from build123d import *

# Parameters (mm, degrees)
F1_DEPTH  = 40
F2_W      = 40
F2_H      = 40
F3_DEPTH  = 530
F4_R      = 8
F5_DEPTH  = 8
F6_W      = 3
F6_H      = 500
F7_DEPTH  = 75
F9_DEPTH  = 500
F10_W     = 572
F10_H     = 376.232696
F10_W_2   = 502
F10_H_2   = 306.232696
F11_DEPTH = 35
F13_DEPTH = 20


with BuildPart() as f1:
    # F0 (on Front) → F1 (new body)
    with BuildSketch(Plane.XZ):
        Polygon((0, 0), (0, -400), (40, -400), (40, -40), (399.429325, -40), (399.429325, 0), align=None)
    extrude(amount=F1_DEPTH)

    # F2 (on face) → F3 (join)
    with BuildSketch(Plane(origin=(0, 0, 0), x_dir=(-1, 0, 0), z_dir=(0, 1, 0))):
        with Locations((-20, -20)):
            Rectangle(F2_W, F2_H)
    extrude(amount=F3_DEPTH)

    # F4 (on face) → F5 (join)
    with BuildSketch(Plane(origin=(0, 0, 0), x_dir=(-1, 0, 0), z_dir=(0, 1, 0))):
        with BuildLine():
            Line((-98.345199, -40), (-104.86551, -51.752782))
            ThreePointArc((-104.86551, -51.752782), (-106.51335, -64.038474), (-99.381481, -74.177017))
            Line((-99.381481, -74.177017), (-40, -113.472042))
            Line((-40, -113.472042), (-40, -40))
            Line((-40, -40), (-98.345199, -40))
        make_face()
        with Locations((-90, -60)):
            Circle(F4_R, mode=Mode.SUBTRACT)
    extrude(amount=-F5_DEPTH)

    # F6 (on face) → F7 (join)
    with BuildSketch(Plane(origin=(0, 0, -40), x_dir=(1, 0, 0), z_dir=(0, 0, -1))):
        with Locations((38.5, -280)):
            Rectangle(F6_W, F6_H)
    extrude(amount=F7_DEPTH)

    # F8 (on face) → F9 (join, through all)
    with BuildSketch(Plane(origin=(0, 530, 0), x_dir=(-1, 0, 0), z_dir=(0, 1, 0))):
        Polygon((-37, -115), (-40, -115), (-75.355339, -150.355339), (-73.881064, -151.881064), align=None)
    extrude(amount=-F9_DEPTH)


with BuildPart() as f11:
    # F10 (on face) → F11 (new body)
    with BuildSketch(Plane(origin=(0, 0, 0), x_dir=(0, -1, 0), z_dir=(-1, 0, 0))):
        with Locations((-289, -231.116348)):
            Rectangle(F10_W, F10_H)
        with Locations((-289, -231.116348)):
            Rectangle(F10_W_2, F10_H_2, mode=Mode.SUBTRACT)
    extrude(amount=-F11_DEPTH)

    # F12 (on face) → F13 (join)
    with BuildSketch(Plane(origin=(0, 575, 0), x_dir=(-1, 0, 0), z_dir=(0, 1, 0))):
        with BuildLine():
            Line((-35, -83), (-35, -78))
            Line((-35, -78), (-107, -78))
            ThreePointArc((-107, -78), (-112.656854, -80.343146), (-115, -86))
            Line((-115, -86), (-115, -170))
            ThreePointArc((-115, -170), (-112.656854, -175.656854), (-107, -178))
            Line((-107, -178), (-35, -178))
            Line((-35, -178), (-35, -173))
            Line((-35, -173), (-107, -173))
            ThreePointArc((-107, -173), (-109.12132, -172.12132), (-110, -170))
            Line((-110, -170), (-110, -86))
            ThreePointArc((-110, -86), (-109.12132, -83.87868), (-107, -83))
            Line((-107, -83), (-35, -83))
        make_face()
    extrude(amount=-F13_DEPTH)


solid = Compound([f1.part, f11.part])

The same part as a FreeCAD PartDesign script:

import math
import FreeCAD as App
import Part
import Sketcher
from FreeCAD import Vector
Q = App.Units.Quantity

doc = App.newDocument("Part")
params = doc.addObject("Spreadsheet::Sheet", "Params")
for row, (alias, value) in enumerate([
    ("sketch1_width", "40 mm"),
    ("sketch1_height", "400 mm"),
    ("pad1_length", "40 mm"),
    ("sketch2_width", "40 mm"),
    ("pad2_length", "530 mm"),
    ("sketch3_diameter", "16 mm"),
    ("sketch3_radius", "16.999999 mm"),
    ("pad3_length", "8 mm"),
    ("sketch4_width", "3 mm"),
    ("sketch4_height", "500 mm"),
    ("pad4_length", "75 mm"),
    ("sketch5_width", "3 mm"),
    ("sketch5_length", "50 mm"),
    ("pad5_length", "500 mm"),
    ("sketch6_width", "572 mm"),
    ("sketch6_width2", "502 mm"),
    ("pad6_length", "35 mm"),
    ("sketch7_radius", "8.000001 mm"),
    ("sketch7_radius2", "3.000001 mm"),
    ("sketch7_width", "72 mm"),
    ("sketch7_height", "84 mm"),
    ("pad7_length", "20 mm"),
], start=1):
    params.set(f"A{row}", alias)
    params.set(f"B{row}", "=" + value)
    params.setAlias(f"B{row}", alias)

body = doc.addObject("PartDesign::Body", "Body")

# Sketch on XZ plane
sketch1 = body.newObject("Sketcher::SketchObject", "Sketch")
sketch1.AttachmentSupport = (doc.getObject("XZ_Plane"), [""])
sketch1.MapMode = "FlatFace"
sketch1.addGeometry(Part.LineSegment(Vector(0, 0, 0), Vector(0, -400, 0)), False)
sketch1.addGeometry(Part.LineSegment(Vector(0, -400, 0), Vector(40, -400, 0)), False)
sketch1.addGeometry(Part.LineSegment(Vector(40, -400, 0), Vector(40, -40, 0)), False)
sketch1.addGeometry(Part.LineSegment(Vector(40, -40, 0), Vector(399, -40, 0)), False)
sketch1.addGeometry(Part.LineSegment(Vector(399, -40, 0), Vector(399, 0, 0)), False)
sketch1.addGeometry(Part.LineSegment(Vector(399, 0, 0), Vector(0, 0, 0)), False)
sketch1.addConstraint(Sketcher.Constraint("Coincident", 0, 2, 1, 1))
sketch1.addConstraint(Sketcher.Constraint("Coincident", 1, 2, 2, 1))
sketch1.addConstraint(Sketcher.Constraint("Coincident", 2, 2, 3, 1))
sketch1.addConstraint(Sketcher.Constraint("Coincident", 3, 2, 4, 1))
sketch1.addConstraint(Sketcher.Constraint("Coincident", 4, 2, 5, 1))
sketch1.addConstraint(Sketcher.Constraint("Coincident", 5, 2, 0, 1))
sketch1.addConstraint(Sketcher.Constraint("Vertical", 0))
sketch1.addConstraint(Sketcher.Constraint("Horizontal", 1))
sketch1.addConstraint(Sketcher.Constraint("Vertical", 2))
sketch1.addConstraint(Sketcher.Constraint("Horizontal", 3))
sketch1.addConstraint(Sketcher.Constraint("Vertical", 4))
sketch1.addConstraint(Sketcher.Constraint("Horizontal", 5))
sketch1.addConstraint(Sketcher.Constraint("Coincident", 5, 2, -1, 1))
sketch1.addConstraint(Sketcher.Constraint("Equal", 1, 4))
sketch1.addConstraint(Sketcher.Constraint("DistanceX", 1, 1, 1, 2, 40.0))
sketch1.addConstraint(Sketcher.Constraint("DistanceY", 0, 2, 0, 1, 400.0))
sketch1.addConstraint(Sketcher.Constraint("DistanceX", 3, 1, 3, 2, 359.429325))
sketch1.setExpression("Constraints[14]", "Params.sketch1_width")
sketch1.setExpression("Constraints[15]", "Params.sketch1_height")
pad1 = body.newObject("PartDesign::Pad", "Pad")
pad1.Profile = sketch1
pad1.setExpression("Length", "Params.pad1_length")

# Sketch on XZ plane
sketch2 = body.newObject("Sketcher::SketchObject", "Sketch001")
sketch2.AttachmentSupport = (doc.getObject("XZ_Plane"), [""])
sketch2.MapMode = "FlatFace"
sketch2.addGeometry(Part.LineSegment(Vector(40, 0, 0), Vector(40, -40, 0)), False)
sketch2.addGeometry(Part.LineSegment(Vector(40, -40, 0), Vector(0, -40, 0)), False)
sketch2.addGeometry(Part.LineSegment(Vector(0, -40, 0), Vector(0, 0, 0)), False)
sketch2.addGeometry(Part.LineSegment(Vector(0, 0, 0), Vector(40, 0, 0)), False)
sketch2.addConstraint(Sketcher.Constraint("Coincident", 0, 2, 1, 1))
sketch2.addConstraint(Sketcher.Constraint("Coincident", 1, 2, 2, 1))
sketch2.addConstraint(Sketcher.Constraint("Coincident", 2, 2, 3, 1))
sketch2.addConstraint(Sketcher.Constraint("Coincident", 3, 2, 0, 1))
sketch2.addConstraint(Sketcher.Constraint("Vertical", 0))
sketch2.addConstraint(Sketcher.Constraint("Horizontal", 1))
sketch2.addConstraint(Sketcher.Constraint("Vertical", 2))
sketch2.addConstraint(Sketcher.Constraint("Horizontal", 3))
sketch2.addConstraint(Sketcher.Constraint("Coincident", 2, 2, -1, 1))
sketch2.addConstraint(Sketcher.Constraint("Equal", 3, 0))
sketch2.addConstraint(Sketcher.Constraint("DistanceX", 1, 2, 1, 1, 40.0))
sketch2.setExpression("Constraints[10]", "Params.sketch2_width")
pad2 = body.newObject("PartDesign::Pad", "Pad001")
pad2.Profile = sketch2
pad2.setExpression("Length", "Params.pad2_length")
pad2.Reversed = True

# Sketch on XZ plane
sketch3 = body.newObject("Sketcher::SketchObject", "Sketch002")
sketch3.AttachmentSupport = (doc.getObject("XZ_Plane"), [""])
sketch3.MapMode = "FlatFace"
sketch3.addGeometry(Part.LineSegment(Vector(98, -40, 0), Vector(105, -52, 0)), False)
sketch3.addGeometry(Part.ArcOfCircle(Part.Circle(Vector(90, -60, 0), Vector(0, 0, 1), 17), math.radians(-57), math.radians(29)), False)
sketch3.addGeometry(Part.LineSegment(Vector(99, -74, 0), Vector(40, -113, 0)), False)
sketch3.addGeometry(Part.LineSegment(Vector(40, -113, 0), Vector(40, -40, 0)), False)
sketch3.addGeometry(Part.LineSegment(Vector(40, -40, 0), Vector(98, -40, 0)), False)
sketch3.addGeometry(Part.Circle(Vector(90, -60, 0), Vector(0, 0, 1), 8), False)
sketch3.addConstraint(Sketcher.Constraint("Tangent", 0, 2, 1, 2))
sketch3.addConstraint(Sketcher.Constraint("Tangent", 1, 1, 2, 1))
sketch3.addConstraint(Sketcher.Constraint("Coincident", 2, 2, 3, 1))
sketch3.addConstraint(Sketcher.Constraint("Coincident", 3, 2, 4, 1))
sketch3.addConstraint(Sketcher.Constraint("Coincident", 4, 2, 0, 1))
sketch3.addConstraint(Sketcher.Constraint("Vertical", 3))
sketch3.addConstraint(Sketcher.Constraint("Horizontal", 4))
sketch3.addConstraint(Sketcher.Constraint("Coincident", 5, 3, 1, 3))
sketch3.addConstraint(Sketcher.Constraint("Diameter", 5, 16.0))
sketch3.addConstraint(Sketcher.Constraint("Radius", 1, 16.999999))
sketch3.addConstraint(Sketcher.Constraint("DistanceX", -1, 1, 1, 3, 90.000001))
sketch3.addConstraint(Sketcher.Constraint("DistanceY", 1, 3, -1, 1, 60.0))
sketch3.addConstraint(Sketcher.Constraint("DistanceX", -1, 1, 2, 2, 40.0))
sketch3.addConstraint(Sketcher.Constraint("DistanceY", 3, 2, -1, 1, 40.0))
sketch3.addConstraint(Sketcher.Constraint("DistanceX", 4, 1, 4, 2, 58.345199))
sketch3.addConstraint(Sketcher.Constraint("DistanceY", 3, 1, 3, 2, 73.472042))
sketch3.setExpression("Constraints[8]", "Params.sketch3_diameter")
sketch3.setExpression("Constraints[9]", "Params.sketch3_radius")
pad3 = body.newObject("PartDesign::Pad", "Pad002")
pad3.Profile = sketch3
pad3.setExpression("Length", "Params.pad3_length")

# Sketch on XY plane
sketch4 = body.newObject("Sketcher::SketchObject", "Sketch003")
sketch4.AttachmentSupport = (doc.getObject("XY_Plane"), [""])
sketch4.MapMode = "FlatFace"
sketch4.AttachmentOffset = App.Placement(Vector(0, 0, -40), App.Rotation())
sketch4.addGeometry(Part.LineSegment(Vector(37, 30, 0), Vector(37, 530, 0)), False)
sketch4.addGeometry(Part.LineSegment(Vector(37, 530, 0), Vector(40, 530, 0)), False)
sketch4.addGeometry(Part.LineSegment(Vector(40, 530, 0), Vector(40, 30, 0)), False)
sketch4.addGeometry(Part.LineSegment(Vector(40, 30, 0), Vector(37, 30, 0)), False)
sketch4.addConstraint(Sketcher.Constraint("Coincident", 0, 2, 1, 1))
sketch4.addConstraint(Sketcher.Constraint("Coincident", 1, 2, 2, 1))
sketch4.addConstraint(Sketcher.Constraint("Coincident", 2, 2, 3, 1))
sketch4.addConstraint(Sketcher.Constraint("Coincident", 3, 2, 0, 1))
sketch4.addConstraint(Sketcher.Constraint("Vertical", 0))
sketch4.addConstraint(Sketcher.Constraint("Horizontal", 1))
sketch4.addConstraint(Sketcher.Constraint("Vertical", 2))
sketch4.addConstraint(Sketcher.Constraint("Horizontal", 3))
sketch4.addConstraint(Sketcher.Constraint("DistanceX", 1, 1, 1, 2, 3.0))
sketch4.addConstraint(Sketcher.Constraint("DistanceY", 0, 1, 0, 2, 500.0))
sketch4.addConstraint(Sketcher.Constraint("DistanceX", -1, 1, 0, 2, 37.0))
sketch4.addConstraint(Sketcher.Constraint("DistanceY", -1, 1, 0, 2, 530.0))
sketch4.setExpression("Constraints[8]", "Params.sketch4_width")
sketch4.setExpression("Constraints[9]", "Params.sketch4_height")
pad4 = body.newObject("PartDesign::Pad", "Pad003")
pad4.Profile = sketch4
pad4.setExpression("Length", "Params.pad4_length")
pad4.Reversed = True

# Sketch on XZ plane
sketch5 = body.newObject("Sketcher::SketchObject", "Sketch004")
sketch5.AttachmentSupport = (doc.getObject("XZ_Plane"), [""])
sketch5.MapMode = "FlatFace"
sketch5.AttachmentOffset = App.Placement(Vector(0, 0, -530), App.Rotation())
sketch5.addGeometry(Part.LineSegment(Vector(37, -115, 0), Vector(40, -115, 0)), False)
sketch5.addGeometry(Part.LineSegment(Vector(40, -115, 0), Vector(75.4, -150.4, 0)), False)
sketch5.addGeometry(Part.LineSegment(Vector(75.4, -150.4, 0), Vector(73.9, -151.9, 0)), False)
sketch5.addGeometry(Part.LineSegment(Vector(73.9, -151.9, 0), Vector(37, -115, 0)), False)
sketch5.addConstraint(Sketcher.Constraint("Coincident", 0, 2, 1, 1))
sketch5.addConstraint(Sketcher.Constraint("Coincident", 1, 2, 2, 1))
sketch5.addConstraint(Sketcher.Constraint("Coincident", 2, 2, 3, 1))
sketch5.addConstraint(Sketcher.Constraint("Coincident", 3, 2, 0, 1))
sketch5.addConstraint(Sketcher.Constraint("Horizontal", 0))
sketch5.addConstraint(Sketcher.Constraint("Parallel", 1, 3))
sketch5.addConstraint(Sketcher.Constraint("DistanceX", 0, 1, 0, 2, 3.0))
sketch5.addConstraint(Sketcher.Constraint("Angle", 1, Q("-45 deg")))
sketch5.addConstraint(Sketcher.Constraint("Distance", 1, 50.0))
sketch5.addConstraint(Sketcher.Constraint("DistanceX", -1, 1, 0, 2, 40.0))
sketch5.addConstraint(Sketcher.Constraint("DistanceY", 0, 2, -1, 1, 115.0))
sketch5.addConstraint(Sketcher.Constraint("Distance", 3, 52.157701))
sketch5.setExpression("Constraints[6]", "Params.sketch5_width")
sketch5.setExpression("Constraints[8]", "Params.sketch5_length")
pad5 = body.newObject("PartDesign::Pad", "Pad004")
pad5.Profile = sketch5
pad5.setExpression("Length", "Params.pad5_length")
body2 = doc.addObject("PartDesign::Body", "Body001")

# Sketch on YZ plane
sketch6 = body2.newObject("Sketcher::SketchObject", "Sketch005")
sketch6.AttachmentSupport = (doc.getObject("YZ_Plane001"), [""])
sketch6.MapMode = "FlatFace"
sketch6.addGeometry(Part.LineSegment(Vector(575, -43, 0), Vector(575, -419, 0)), False)
sketch6.addGeometry(Part.LineSegment(Vector(575, -419, 0), Vector(3, -419, 0)), False)
sketch6.addGeometry(Part.LineSegment(Vector(3, -419, 0), Vector(3, -43, 0)), False)
sketch6.addGeometry(Part.LineSegment(Vector(3, -43, 0), Vector(575, -43, 0)), False)
sketch6.addGeometry(Part.LineSegment(Vector(38, -384, 0), Vector(540, -384, 0)), False)
sketch6.addGeometry(Part.LineSegment(Vector(540, -384, 0), Vector(540, -78, 0)), False)
sketch6.addGeometry(Part.LineSegment(Vector(540, -78, 0), Vector(38, -78, 0)), False)
sketch6.addGeometry(Part.LineSegment(Vector(38, -78, 0), Vector(38, -384, 0)), False)
sketch6.addConstraint(Sketcher.Constraint("Coincident", 0, 2, 1, 1))
sketch6.addConstraint(Sketcher.Constraint("Coincident", 1, 2, 2, 1))
sketch6.addConstraint(Sketcher.Constraint("Coincident", 2, 2, 3, 1))
sketch6.addConstraint(Sketcher.Constraint("Coincident", 3, 2, 0, 1))
sketch6.addConstraint(Sketcher.Constraint("Coincident", 4, 2, 5, 1))
sketch6.addConstraint(Sketcher.Constraint("Coincident", 5, 2, 6, 1))
sketch6.addConstraint(Sketcher.Constraint("Coincident", 6, 2, 7, 1))
sketch6.addConstraint(Sketcher.Constraint("Coincident", 7, 2, 4, 1))
sketch6.addConstraint(Sketcher.Constraint("Vertical", 0))
sketch6.addConstraint(Sketcher.Constraint("Horizontal", 1))
sketch6.addConstraint(Sketcher.Constraint("Vertical", 2))
sketch6.addConstraint(Sketcher.Constraint("Horizontal", 3))
sketch6.addConstraint(Sketcher.Constraint("Horizontal", 4))
sketch6.addConstraint(Sketcher.Constraint("Vertical", 5))
sketch6.addConstraint(Sketcher.Constraint("Horizontal", 6))
sketch6.addConstraint(Sketcher.Constraint("Vertical", 7))
sketch6.addConstraint(Sketcher.Constraint("DistanceX", 1, 2, 1, 1, 572.0))
sketch6.addConstraint(Sketcher.Constraint("DistanceX", 4, 1, 4, 2, 502.0))
sketch6.addConstraint(Sketcher.Constraint("DistanceX", -1, 1, 0, 2, 575.0))
sketch6.addConstraint(Sketcher.Constraint("DistanceY", 2, 2, -1, 1, 43.0))
sketch6.addConstraint(Sketcher.Constraint("DistanceX", -1, 1, 4, 2, 540.0))
sketch6.addConstraint(Sketcher.Constraint("DistanceY", 5, 2, -1, 1, 78.0))
sketch6.addConstraint(Sketcher.Constraint("DistanceY", 0, 2, 4, 2, 35.0))
sketch6.addConstraint(Sketcher.Constraint("DistanceY", 0, 2, 0, 1, 376.232696))
sketch6.setExpression("Constraints[16]", "Params.sketch6_width")
sketch6.setExpression("Constraints[17]", "Params.sketch6_width2")
pad6 = body2.newObject("PartDesign::Pad", "Pad005")
pad6.Profile = sketch6
pad6.setExpression("Length", "Params.pad6_length")

# Sketch on XZ plane
sketch7 = body2.newObject("Sketcher::SketchObject", "Sketch006")
sketch7.AttachmentSupport = (doc.getObject("XZ_Plane001"), [""])
sketch7.MapMode = "FlatFace"
sketch7.AttachmentOffset = App.Placement(Vector(0, 0, -575), App.Rotation())
sketch7.addGeometry(Part.LineSegment(Vector(35, -83, 0), Vector(35, -78, 0)), False)
sketch7.addGeometry(Part.LineSegment(Vector(35, -78, 0), Vector(107, -78, 0)), False)
sketch7.addGeometry(Part.ArcOfCircle(Part.Circle(Vector(107, -86, 0), Vector(0, 0, 1), 8), math.radians(0), math.radians(90)), False)
sketch7.addGeometry(Part.LineSegment(Vector(115, -86, 0), Vector(115, -170, 0)), False)
sketch7.addGeometry(Part.ArcOfCircle(Part.Circle(Vector(107, -170, 0), Vector(0, 0, 1), 8), math.radians(-90), math.radians(0)), False)
sketch7.addGeometry(Part.LineSegment(Vector(107, -178, 0), Vector(35, -178, 0)), False)
sketch7.addGeometry(Part.LineSegment(Vector(35, -178, 0), Vector(35, -173, 0)), False)
sketch7.addGeometry(Part.LineSegment(Vector(35, -173, 0), Vector(107, -173, 0)), False)
sketch7.addGeometry(Part.ArcOfCircle(Part.Circle(Vector(107, -170, 0), Vector(0, 0, 1), 3), math.radians(-90), math.radians(0)), False)
sketch7.addGeometry(Part.LineSegment(Vector(110, -170, 0), Vector(110, -86, 0)), False)
sketch7.addGeometry(Part.ArcOfCircle(Part.Circle(Vector(107, -86, 0), Vector(0, 0, 1), 3), math.radians(0), math.radians(90)), False)
sketch7.addGeometry(Part.LineSegment(Vector(107, -83, 0), Vector(35, -83, 0)), False)
sketch7.addConstraint(Sketcher.Constraint("Coincident", 0, 2, 1, 1))
sketch7.addConstraint(Sketcher.Constraint("Tangent", 1, 2, 2, 2))
sketch7.addConstraint(Sketcher.Constraint("Tangent", 2, 1, 3, 1))
sketch7.addConstraint(Sketcher.Constraint("Tangent", 3, 2, 4, 2))
sketch7.addConstraint(Sketcher.Constraint("Tangent", 4, 1, 5, 1))
sketch7.addConstraint(Sketcher.Constraint("Coincident", 5, 2, 6, 1))
sketch7.addConstraint(Sketcher.Constraint("Coincident", 6, 2, 7, 1))
sketch7.addConstraint(Sketcher.Constraint("Tangent", 7, 2, 8, 1))
sketch7.addConstraint(Sketcher.Constraint("Tangent", 8, 2, 9, 1))
sketch7.addConstraint(Sketcher.Constraint("Tangent", 9, 2, 10, 1))
sketch7.addConstraint(Sketcher.Constraint("Tangent", 10, 2, 11, 1))
sketch7.addConstraint(Sketcher.Constraint("Coincident", 11, 2, 0, 1))
sketch7.addConstraint(Sketcher.Constraint("Vertical", 0))
sketch7.addConstraint(Sketcher.Constraint("Horizontal", 1))
sketch7.addConstraint(Sketcher.Constraint("Vertical", 3))
sketch7.addConstraint(Sketcher.Constraint("Horizontal", 5))
sketch7.addConstraint(Sketcher.Constraint("Vertical", 6))
sketch7.addConstraint(Sketcher.Constraint("Horizontal", 7))
sketch7.addConstraint(Sketcher.Constraint("Vertical", 9))
sketch7.addConstraint(Sketcher.Constraint("Horizontal", 11))
sketch7.addConstraint(Sketcher.Constraint("Coincident", 8, 3, 4, 3))
sketch7.addConstraint(Sketcher.Constraint("Coincident", 10, 3, 2, 3))
sketch7.addConstraint(Sketcher.Constraint("Equal", 2, 4))
sketch7.addConstraint(Sketcher.Constraint("Vertical", 0, 2, 5, 2))
sketch7.addConstraint(Sketcher.Constraint("Radius", 2, 8.000001))
sketch7.addConstraint(Sketcher.Constraint("Radius", 8, 3.000001))
sketch7.addConstraint(Sketcher.Constraint("DistanceX", 1, 1, 1, 2, 72.0))
sketch7.addConstraint(Sketcher.Constraint("DistanceY", 3, 2, 3, 1, 84.0))
sketch7.addConstraint(Sketcher.Constraint("DistanceX", -1, 1, 2, 3, 106.999999))
sketch7.addConstraint(Sketcher.Constraint("DistanceY", 2, 3, -1, 1, 86.000001))
sketch7.setExpression("Constraints[24]", "Params.sketch7_radius")
sketch7.setExpression("Constraints[25]", "Params.sketch7_radius2")
sketch7.setExpression("Constraints[26]", "Params.sketch7_width")
sketch7.setExpression("Constraints[27]", "Params.sketch7_height")
pad7 = body2.newObject("PartDesign::Pad", "Pad006")
pad7.Profile = sketch7
pad7.setExpression("Length", "Params.pad7_length")

doc.recompute()
